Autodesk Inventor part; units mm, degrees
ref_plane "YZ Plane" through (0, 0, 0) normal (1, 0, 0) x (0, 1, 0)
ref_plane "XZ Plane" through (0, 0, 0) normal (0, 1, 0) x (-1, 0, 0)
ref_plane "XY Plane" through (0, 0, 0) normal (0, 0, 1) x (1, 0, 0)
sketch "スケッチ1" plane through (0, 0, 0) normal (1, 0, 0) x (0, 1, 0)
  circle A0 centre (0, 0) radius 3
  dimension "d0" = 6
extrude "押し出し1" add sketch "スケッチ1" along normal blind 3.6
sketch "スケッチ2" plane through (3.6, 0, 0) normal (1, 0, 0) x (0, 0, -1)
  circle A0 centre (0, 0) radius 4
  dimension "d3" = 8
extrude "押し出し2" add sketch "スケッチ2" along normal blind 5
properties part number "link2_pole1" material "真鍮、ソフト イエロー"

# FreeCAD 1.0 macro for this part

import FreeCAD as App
import Part
import Sketcher

doc = App.newDocument("Part")
body = doc.addObject("PartDesign::Body", "Body")

sketch1 = doc.addObject("Sketcher::SketchObject", "Sketch")
body.addObject(sketch1)
sketch1.AttachmentSupport = (doc.YZ_Plane, [""])
sketch1.MapMode = "FlatFace"
sketch1.addGeometry(Part.Circle(App.Vector(0, 0, 0), App.Vector(0, 0, 1), 3), False)
sketch1.addConstraint(Sketcher.Constraint("Coincident", 0, 3, -1, 1))
sketch1.addConstraint(Sketcher.Constraint("Diameter", 0, 6.0))
pad1 = doc.addObject("PartDesign::Pad", "Pad")
body.addObject(pad1)
pad1.Profile = sketch1
pad1.Length = 3.6

sketch2 = doc.addObject("Sketcher::SketchObject", "Sketch001")
body.addObject(sketch2)
sketch2.AttachmentSupport = (doc.YZ_Plane, [""])
sketch2.MapMode = "FlatFace"
sketch2.AttachmentOffset = App.Placement(App.Vector(0, 0, 3.6), App.Rotation())
sketch2.addGeometry(Part.Circle(App.Vector(0, 0, 0), App.Vector(0, 0, 1), 4), False)
sketch2.addConstraint(Sketcher.Constraint("Coincident", 0, 3, -1, 1))
sketch2.addConstraint(Sketcher.Constraint("Diameter", 0, 8.0))
pad2 = doc.addObject("PartDesign::Pad", "Pad001")
body.addObject(pad2)
pad2.Profile = sketch2
pad2.Length = 5

doc.recompute()
